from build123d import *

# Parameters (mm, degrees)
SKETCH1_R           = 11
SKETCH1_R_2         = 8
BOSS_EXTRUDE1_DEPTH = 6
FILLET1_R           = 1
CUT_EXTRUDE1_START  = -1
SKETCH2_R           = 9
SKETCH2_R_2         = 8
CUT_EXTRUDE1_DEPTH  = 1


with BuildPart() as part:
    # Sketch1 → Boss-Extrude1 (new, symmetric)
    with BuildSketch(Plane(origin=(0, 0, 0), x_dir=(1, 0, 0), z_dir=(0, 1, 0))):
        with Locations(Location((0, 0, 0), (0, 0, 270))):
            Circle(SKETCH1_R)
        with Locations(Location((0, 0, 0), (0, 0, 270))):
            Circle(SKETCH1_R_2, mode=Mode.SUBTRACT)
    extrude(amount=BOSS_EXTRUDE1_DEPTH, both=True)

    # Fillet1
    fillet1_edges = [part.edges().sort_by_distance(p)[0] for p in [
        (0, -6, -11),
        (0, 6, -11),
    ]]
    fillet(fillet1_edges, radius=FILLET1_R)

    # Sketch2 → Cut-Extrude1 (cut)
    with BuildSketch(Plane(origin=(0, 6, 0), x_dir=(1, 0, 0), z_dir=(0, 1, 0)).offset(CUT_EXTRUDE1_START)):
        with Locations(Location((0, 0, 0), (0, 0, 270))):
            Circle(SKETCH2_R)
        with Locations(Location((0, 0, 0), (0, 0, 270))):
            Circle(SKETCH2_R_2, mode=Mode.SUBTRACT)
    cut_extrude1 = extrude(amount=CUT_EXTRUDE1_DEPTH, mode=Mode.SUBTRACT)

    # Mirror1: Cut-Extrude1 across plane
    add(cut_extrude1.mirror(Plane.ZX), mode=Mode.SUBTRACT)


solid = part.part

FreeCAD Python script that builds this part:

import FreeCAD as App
import Part
import Sketcher
from FreeCAD import Vector


def edges_at(feature, points):
    """Names of the edges that pass closest to the given points."""
    edges = feature.Shape.Edges
    near = lambda p: min(range(len(edges)), key=lambda i: edges[i].distToShape(Part.Vertex(*p))[0])
    return sorted({f"Edge{near(p) + 1}" for p in points})

doc = App.newDocument("Part")
body = doc.addObject("PartDesign::Body", "Body")

# Sketch on XZ plane
sketch1 = body.newObject("Sketcher::SketchObject", "Sketch")
sketch1.AttachmentSupport = (doc.getObject("XZ_Plane"), [""])
sketch1.MapMode = "FlatFace"
sketch1.addGeometry([
    Part.Circle(Vector(0, 0, 0), Vector(0, 0, 1), 11),
    Part.Circle(Vector(0, 0, 0), Vector(0, 0, 1), 8),
], False)
sketch1.addConstraint([
    Sketcher.Constraint("Coincident", 0, 3, -1, 1),
    Sketcher.Constraint("Coincident", 1, 3, -1, 1),
    Sketcher.Constraint("Diameter", 0, 22.0),
    Sketcher.Constraint("Diameter", 1, 16.0),
])
pad1 = body.newObject("PartDesign::Pad", "Pad")
pad1.Profile = sketch1
pad1.Length = 12
pad1.Midplane = True
doc.recompute()

fillet = body.newObject("PartDesign::Fillet", "Fillet")
fillet.Base = (pad1, edges_at(pad1, [(0, -6, -11), (0, 6, -11)]))
fillet.Radius = 1

# Sketch on XZ plane
sketch2 = body.newObject("Sketcher::SketchObject", "Sketch001")
sketch2.AttachmentSupport = (doc.getObject("XZ_Plane"), [""])
sketch2.MapMode = "FlatFace"
sketch2.AttachmentOffset = App.Placement(Vector(0, 0, -5), App.Rotation())
sketch2.addGeometry([
    Part.Circle(Vector(0, 0, 0), Vector(0, 0, 1), 9),
    Part.Circle(Vector(0, 0, 0), Vector(0, 0, 1), 8),
], False)
sketch2.addConstraint([
    Sketcher.Constraint("Coincident", 0, 3, -1, 1),
    Sketcher.Constraint("Coincident", 1, 3, -1, 1),
    Sketcher.Constraint("Diameter", 0, 18.0),
    Sketcher.Constraint("Diameter", 1, 16.0),
])
pocket1 = body.newObject("PartDesign::Pocket", "Pocket")
pocket1.Profile = sketch2
pocket1.Length = 1
doc.recompute()

mirrored = body.newObject("PartDesign::Mirrored", "Mirrored")
mirrored.Originals = [pocket1]
mirrored.MirrorPlane = (doc.getObject("XZ_Plane"), [""])
body.Tip = mirrored

doc.recompute()
